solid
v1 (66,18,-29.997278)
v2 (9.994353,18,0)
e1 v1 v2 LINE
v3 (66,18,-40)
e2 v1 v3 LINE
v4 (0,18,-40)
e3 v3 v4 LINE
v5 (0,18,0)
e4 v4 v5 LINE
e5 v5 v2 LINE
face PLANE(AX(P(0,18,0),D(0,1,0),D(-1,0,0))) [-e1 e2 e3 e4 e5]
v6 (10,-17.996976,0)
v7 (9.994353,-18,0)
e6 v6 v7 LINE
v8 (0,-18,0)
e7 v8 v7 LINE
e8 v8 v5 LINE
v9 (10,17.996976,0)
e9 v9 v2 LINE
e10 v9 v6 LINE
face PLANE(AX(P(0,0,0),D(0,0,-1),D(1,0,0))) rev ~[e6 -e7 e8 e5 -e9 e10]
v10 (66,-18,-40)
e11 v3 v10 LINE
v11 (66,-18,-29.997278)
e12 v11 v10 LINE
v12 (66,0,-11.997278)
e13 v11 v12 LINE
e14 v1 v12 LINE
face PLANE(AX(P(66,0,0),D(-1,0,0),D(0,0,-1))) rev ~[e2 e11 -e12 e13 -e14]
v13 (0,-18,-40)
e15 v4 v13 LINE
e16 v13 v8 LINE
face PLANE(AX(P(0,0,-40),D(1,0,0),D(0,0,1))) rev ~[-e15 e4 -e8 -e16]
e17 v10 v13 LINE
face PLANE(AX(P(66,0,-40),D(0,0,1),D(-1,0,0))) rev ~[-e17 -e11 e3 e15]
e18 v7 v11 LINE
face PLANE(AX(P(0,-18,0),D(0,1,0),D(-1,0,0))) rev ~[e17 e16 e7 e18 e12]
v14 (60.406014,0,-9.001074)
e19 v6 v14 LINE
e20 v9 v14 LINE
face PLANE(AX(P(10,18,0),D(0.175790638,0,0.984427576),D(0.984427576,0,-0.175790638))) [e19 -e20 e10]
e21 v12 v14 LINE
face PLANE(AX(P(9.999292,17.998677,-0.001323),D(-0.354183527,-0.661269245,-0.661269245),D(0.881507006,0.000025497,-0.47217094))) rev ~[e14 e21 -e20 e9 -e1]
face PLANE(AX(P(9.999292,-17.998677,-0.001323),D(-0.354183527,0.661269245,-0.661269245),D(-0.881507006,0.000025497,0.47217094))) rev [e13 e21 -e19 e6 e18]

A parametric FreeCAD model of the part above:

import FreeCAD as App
import Part
import Sketcher
from FreeCAD import Vector
Q = App.Units.Quantity

doc = App.newDocument("Part")
body = doc.addObject("PartDesign::Body", "Body")

# Sketch on XZ plane
sketch1 = body.newObject("Sketcher::SketchObject", "Sketch")
sketch1.AttachmentSupport = (doc.getObject("XZ_Plane"), [""])
sketch1.MapMode = "FlatFace"
sketch1.addGeometry([
    Part.LineSegment(Vector(0, -40, 0), Vector(0, 0, 0)),
    Part.LineSegment(Vector(0, 0, 0), Vector(66, 0, 0)),
    Part.LineSegment(Vector(66, 0, 0), Vector(66, -40, 0)),
    Part.LineSegment(Vector(66, -40, 0), Vector(0, -40, 0)),
], False)
sketch1.addConstraint([
    Sketcher.Constraint("Coincident", 0, 2, 1, 1),
    Sketcher.Constraint("Coincident", 1, 2, 2, 1),
    Sketcher.Constraint("Coincident", 2, 2, 3, 1),
    Sketcher.Constraint("Coincident", 3, 2, 0, 1),
    Sketcher.Constraint("Vertical", 0),
    Sketcher.Constraint("Horizontal", 1),
    Sketcher.Constraint("Vertical", 2),
    Sketcher.Constraint("Horizontal", 3),
    Sketcher.Constraint("Coincident", 0, 2, -1, 1),
    Sketcher.Constraint("DistanceX", 1, 1, 1, 2, Q("66 mm")),
    Sketcher.Constraint("DistanceY", 0, 1, 0, 2, Q("40 mm")),
])
pad1 = body.newObject("PartDesign::Pad", "Pad")
pad1.Profile = sketch1
pad1.Length = 36
pad1.Midplane = True

# Sketch on XZ plane
sketch2 = body.newObject("Sketcher::SketchObject", "Sketch001")
sketch2.AttachmentSupport = (doc.getObject("XZ_Plane"), [""])
sketch2.MapMode = "FlatFace"
sketch2.AttachmentOffset = App.Placement(Vector(0, 0, -18), App.Rotation())
sketch2.addGeometry([
    Part.LineSegment(Vector(66, -10, 0), Vector(10, 0, 0)),
    Part.LineSegment(Vector(10, 0, 0), Vector(66, 0, 0)),
    Part.LineSegment(Vector(66, 0, 0), Vector(66, -10, 0)),
], False)
sketch2.addConstraint([
    Sketcher.Constraint("Coincident", 0, 2, 1, 1),
    Sketcher.Constraint("Coincident", 1, 2, 2, 1),
    Sketcher.Constraint("Coincident", 2, 2, 0, 1),
    Sketcher.Constraint("Horizontal", 1),
    Sketcher.Constraint("Vertical", 2),
    Sketcher.Constraint("PointOnObject", 0, 2, -1),
    Sketcher.Constraint("DistanceY", 2, 2, 2, 1, Q("10 mm")),
    Sketcher.Constraint("DistanceX", -1, 1, 0, 2, Q("10 mm")),
    Sketcher.Constraint("DistanceX", 1, 1, 1, 2, Q("56 mm")),
])
pocket1 = body.newObject("PartDesign::Pocket", "Pocket")
pocket1.Profile = sketch2
pocket1.Length = 40
pocket1.Reversed = True

# Sketch on an angled plane
sketch3 = body.newObject("Sketcher::SketchObject", "Sketch002")
sketch3.Placement = App.Placement(Vector(10, 18, 0), App.Rotation(Vector(0.881507006, 0.000025497, -0.47217094), Vector(0.312248981, -0.750148641, 0.582904442), Vector(-0.354183527, -0.661269245, -0.661269245), "ZXY"))
sketch3.addGeometry([
    Part.LineSegment(Vector(-15, 29, 0), Vector(-15, -12, 0)),
    Part.LineSegment(Vector(-15, -12, 0), Vector(94, -12, 0)),
    Part.LineSegment(Vector(94, -12, 0), Vector(94, 29, 0)),
    Part.LineSegment(Vector(94, 29, 0), Vector(-15, 29, 0)),
], False)
sketch3.addConstraint([
    Sketcher.Constraint("Coincident", 0, 2, 1, 1),
    Sketcher.Constraint("Coincident", 1, 2, 2, 1),
    Sketcher.Constraint("Coincident", 2, 2, 3, 1),
    Sketcher.Constraint("Coincident", 3, 2, 0, 1),
    Sketcher.Constraint("Vertical", 0),
    Sketcher.Constraint("Horizontal", 1),
    Sketcher.Constraint("Vertical", 2),
    Sketcher.Constraint("Horizontal", 3),
    Sketcher.Constraint("DistanceX", 1, 1, 1, 2, Q("108.8713 mm")),
    Sketcher.Constraint("DistanceY", 0, 2, 0, 1, Q("41.1384 mm")),
    Sketcher.Constraint("DistanceX", -1, 1, 1, 2, Q("93.717 mm")),
    Sketcher.Constraint("DistanceY", 0, 2, -1, 1, Q("12.3218 mm")),
])
pocket2 = body.newObject("PartDesign::Pocket", "Pocket001")
pocket2.Profile = sketch3
pocket2.Length = 40
doc.recompute()

mirrored = body.newObject("PartDesign::Mirrored", "Mirrored")
mirrored.Originals = [pocket2]
mirrored.MirrorPlane = (doc.getObject("XZ_Plane"), [""])
body.Tip = mirrored

doc.recompute()
